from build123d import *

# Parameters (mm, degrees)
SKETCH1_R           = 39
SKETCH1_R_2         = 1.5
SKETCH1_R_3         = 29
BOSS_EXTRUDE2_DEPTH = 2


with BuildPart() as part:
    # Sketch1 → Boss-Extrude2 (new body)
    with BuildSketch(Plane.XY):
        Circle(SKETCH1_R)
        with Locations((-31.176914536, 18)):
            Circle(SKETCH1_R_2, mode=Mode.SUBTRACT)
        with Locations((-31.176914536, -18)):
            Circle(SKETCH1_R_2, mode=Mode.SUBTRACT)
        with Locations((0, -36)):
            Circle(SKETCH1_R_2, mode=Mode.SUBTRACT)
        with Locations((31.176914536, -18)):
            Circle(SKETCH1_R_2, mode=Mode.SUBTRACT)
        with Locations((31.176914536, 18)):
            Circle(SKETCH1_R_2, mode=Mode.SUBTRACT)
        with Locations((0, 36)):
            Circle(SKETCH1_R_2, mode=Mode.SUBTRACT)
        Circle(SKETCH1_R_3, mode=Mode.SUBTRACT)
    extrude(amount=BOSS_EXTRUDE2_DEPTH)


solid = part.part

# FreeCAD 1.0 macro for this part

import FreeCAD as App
import Part
import Sketcher

V = App.Vector

doc = App.newDocument("Part")
body = doc.addObject("PartDesign::Body", "Body")

sketch1 = body.newObject("Sketcher::SketchObject", "Sketch")
sketch1.AttachmentSupport = (doc.getObject("XY_Plane"), [""])
sketch1.MapMode = "FlatFace"
sketch1.addGeometry([
    Part.Circle(V(0, 0, 0), V(0, 0, 1), 39),
    Part.Circle(V(-31.176915, -18, 0), V(0, 0, 1), 1.5),
    Part.Circle(V(0, -36, 0), V(0, 0, 1), 1.5),
    Part.Circle(V(31.176915, -18, 0), V(0, 0, 1), 1.5),
    Part.Circle(V(-31.176915, 18, 0), V(0, 0, 1), 1.5),
    Part.Circle(V(0, 0, 0), V(0, 0, 1), 29),
    Part.Circle(V(31.176915, 18, 0), V(0, 0, 1), 1.5),
    Part.Circle(V(0, 36, 0), V(0, 0, 1), 1.5),
], False)
sketch1.addConstraint([
    Sketcher.Constraint("Coincident", 0, 3, -1, 1),
    Sketcher.Constraint("Coincident", 5, 3, -1, 1),
    Sketcher.Constraint("Equal", 1, 2),
    Sketcher.Constraint("Equal", 2, 3),
    Sketcher.Constraint("Equal", 3, 4),
    Sketcher.Constraint("Equal", 4, 6),
    Sketcher.Constraint("Equal", 6, 7),
    Sketcher.Constraint("Symmetric", 3, 3, 4, 3, -1, 1),
    Sketcher.Constraint("Symmetric", 1, 3, 6, 3, -1, 1),
    Sketcher.Constraint("Symmetric", 2, 3, 7, 3, -1, 1),
    Sketcher.Constraint("Symmetric", 1, 3, 3, 3, -2),
    Sketcher.Constraint("PointOnObject", 2, 3, -2),
    Sketcher.Constraint("Diameter", 0, 78.0),
    Sketcher.Constraint("Diameter", 1, 3.0),
    Sketcher.Constraint("Diameter", 5, 58.0),
    Sketcher.Constraint("DistanceY", 1, 3, -1, 1, 18.0),
    Sketcher.Constraint("DistanceY", 2, 3, -1, 1, 36.0),
    Sketcher.Constraint("DistanceX", 1, 3, 3, 3, 62.353829),
])
pad1 = body.newObject("PartDesign::Pad", "Pad")
pad1.Profile = sketch1
pad1.Length = 2

doc.recompute()
